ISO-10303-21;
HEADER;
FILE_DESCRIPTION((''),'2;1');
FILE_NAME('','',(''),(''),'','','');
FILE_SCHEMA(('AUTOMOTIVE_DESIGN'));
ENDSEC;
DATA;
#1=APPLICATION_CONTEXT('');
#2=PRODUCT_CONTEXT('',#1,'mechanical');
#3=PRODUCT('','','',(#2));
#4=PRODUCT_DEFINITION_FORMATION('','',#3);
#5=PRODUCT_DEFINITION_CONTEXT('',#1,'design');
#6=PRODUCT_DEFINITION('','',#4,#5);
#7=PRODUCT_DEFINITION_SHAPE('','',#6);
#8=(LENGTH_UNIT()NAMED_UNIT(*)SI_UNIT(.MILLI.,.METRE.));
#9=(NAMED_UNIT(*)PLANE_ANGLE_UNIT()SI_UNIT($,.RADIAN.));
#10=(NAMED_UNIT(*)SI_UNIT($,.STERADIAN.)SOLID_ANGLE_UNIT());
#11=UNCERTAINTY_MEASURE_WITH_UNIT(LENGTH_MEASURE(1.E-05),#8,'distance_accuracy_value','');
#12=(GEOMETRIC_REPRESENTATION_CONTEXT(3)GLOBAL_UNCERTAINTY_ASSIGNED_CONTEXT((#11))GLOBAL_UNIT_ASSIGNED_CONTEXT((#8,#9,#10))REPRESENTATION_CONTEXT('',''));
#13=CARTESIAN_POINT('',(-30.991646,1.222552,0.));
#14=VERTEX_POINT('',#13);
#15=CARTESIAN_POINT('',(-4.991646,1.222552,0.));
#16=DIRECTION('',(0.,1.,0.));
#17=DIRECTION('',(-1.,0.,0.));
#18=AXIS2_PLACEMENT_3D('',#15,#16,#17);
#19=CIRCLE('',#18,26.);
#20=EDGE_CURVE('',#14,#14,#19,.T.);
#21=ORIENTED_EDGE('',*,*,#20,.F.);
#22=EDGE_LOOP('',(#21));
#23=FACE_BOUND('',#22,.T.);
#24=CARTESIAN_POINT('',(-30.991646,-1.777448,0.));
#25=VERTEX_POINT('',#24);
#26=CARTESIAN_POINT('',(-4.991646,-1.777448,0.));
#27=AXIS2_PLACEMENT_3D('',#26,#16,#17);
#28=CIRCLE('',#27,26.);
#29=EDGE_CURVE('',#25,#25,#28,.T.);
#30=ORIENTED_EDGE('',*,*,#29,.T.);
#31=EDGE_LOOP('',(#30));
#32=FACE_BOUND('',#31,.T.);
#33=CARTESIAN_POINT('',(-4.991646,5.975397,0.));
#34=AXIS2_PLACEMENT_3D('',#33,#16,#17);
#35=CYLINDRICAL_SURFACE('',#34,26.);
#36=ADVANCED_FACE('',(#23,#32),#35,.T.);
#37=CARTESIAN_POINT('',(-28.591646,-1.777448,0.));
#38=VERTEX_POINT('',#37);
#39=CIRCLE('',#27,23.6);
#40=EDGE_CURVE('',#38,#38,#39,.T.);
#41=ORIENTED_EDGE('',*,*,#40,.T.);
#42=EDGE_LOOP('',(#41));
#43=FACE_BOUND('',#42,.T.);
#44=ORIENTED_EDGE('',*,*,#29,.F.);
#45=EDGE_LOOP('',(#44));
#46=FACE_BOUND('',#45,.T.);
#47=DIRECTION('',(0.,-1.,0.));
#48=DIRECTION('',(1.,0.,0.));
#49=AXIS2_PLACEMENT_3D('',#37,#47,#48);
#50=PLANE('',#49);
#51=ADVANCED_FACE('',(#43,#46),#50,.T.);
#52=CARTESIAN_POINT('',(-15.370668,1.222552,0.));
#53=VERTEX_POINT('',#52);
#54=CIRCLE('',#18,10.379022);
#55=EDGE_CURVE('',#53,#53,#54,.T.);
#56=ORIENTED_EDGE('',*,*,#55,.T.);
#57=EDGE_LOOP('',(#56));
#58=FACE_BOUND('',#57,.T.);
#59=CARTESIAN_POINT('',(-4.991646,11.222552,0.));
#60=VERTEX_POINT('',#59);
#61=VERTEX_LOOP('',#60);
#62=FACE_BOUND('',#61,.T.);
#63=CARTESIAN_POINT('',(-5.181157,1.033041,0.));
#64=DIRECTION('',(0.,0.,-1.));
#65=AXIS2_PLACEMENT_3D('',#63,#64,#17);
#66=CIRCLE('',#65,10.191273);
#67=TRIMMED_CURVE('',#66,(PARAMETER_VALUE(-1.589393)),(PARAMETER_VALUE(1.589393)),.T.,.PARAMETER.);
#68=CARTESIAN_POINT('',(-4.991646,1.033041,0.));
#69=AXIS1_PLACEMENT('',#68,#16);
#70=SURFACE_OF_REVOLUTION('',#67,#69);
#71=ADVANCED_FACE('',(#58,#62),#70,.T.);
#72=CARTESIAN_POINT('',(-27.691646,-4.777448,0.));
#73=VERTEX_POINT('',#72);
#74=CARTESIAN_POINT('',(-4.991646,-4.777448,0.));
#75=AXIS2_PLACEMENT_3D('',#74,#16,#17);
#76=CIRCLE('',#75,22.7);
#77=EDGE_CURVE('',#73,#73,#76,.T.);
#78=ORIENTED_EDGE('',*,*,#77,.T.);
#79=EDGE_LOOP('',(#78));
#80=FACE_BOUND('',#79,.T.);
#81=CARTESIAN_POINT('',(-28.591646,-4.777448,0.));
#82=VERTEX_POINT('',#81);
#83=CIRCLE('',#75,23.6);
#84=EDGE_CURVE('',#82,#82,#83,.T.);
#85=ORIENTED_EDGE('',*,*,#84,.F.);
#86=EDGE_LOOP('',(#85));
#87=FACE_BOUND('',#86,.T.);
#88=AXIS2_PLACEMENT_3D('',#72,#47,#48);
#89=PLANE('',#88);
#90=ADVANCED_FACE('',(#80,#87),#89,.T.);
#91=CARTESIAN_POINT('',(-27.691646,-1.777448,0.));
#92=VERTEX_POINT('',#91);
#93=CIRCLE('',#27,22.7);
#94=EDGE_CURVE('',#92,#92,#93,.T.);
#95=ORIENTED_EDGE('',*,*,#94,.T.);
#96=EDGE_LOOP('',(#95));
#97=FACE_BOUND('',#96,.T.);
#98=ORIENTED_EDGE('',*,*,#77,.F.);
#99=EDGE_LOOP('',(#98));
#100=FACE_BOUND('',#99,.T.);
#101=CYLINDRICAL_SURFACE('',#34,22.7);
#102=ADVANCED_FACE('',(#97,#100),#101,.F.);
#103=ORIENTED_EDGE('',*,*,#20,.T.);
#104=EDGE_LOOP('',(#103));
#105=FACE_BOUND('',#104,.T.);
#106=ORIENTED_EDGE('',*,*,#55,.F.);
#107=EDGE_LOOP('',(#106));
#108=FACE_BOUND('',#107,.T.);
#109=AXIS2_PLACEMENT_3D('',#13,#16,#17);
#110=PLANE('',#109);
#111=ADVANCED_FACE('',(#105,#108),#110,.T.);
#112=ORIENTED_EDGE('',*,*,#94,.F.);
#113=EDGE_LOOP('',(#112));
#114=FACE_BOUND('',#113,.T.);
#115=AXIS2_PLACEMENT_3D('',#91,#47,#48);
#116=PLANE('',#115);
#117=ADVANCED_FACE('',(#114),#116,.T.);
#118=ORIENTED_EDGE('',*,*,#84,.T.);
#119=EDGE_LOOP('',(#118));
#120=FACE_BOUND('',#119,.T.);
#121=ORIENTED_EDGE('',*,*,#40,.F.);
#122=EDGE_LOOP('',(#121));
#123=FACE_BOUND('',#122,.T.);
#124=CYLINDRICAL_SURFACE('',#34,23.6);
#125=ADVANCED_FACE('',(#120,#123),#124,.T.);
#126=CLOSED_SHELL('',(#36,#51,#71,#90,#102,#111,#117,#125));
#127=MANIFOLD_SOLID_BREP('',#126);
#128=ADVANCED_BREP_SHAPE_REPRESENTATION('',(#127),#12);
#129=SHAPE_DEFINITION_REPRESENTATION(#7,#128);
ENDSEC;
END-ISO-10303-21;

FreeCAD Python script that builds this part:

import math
import FreeCAD as App
import Part
import Sketcher
from FreeCAD import Vector

doc = App.newDocument("Part")
body = doc.addObject("PartDesign::Body", "Body")

# Sketch on XY plane
sketch1 = body.newObject("Sketcher::SketchObject", "Sketch")
sketch1.AttachmentSupport = (doc.getObject("XY_Plane"), [""])
sketch1.MapMode = "FlatFace"
sketch1.addGeometry(Part.LineSegment(Vector(-27.7, -4.8, 0), Vector(-27.7, -1.8, 0)), False)
sketch1.addGeometry(Part.LineSegment(Vector(-27.7, -1.8, 0), Vector(-5, -1.8, 0)), False)
sketch1.addGeometry(Part.LineSegment(Vector(-5, -1.8, 0), Vector(-5, 11.2, 0)), False)
sketch1.addGeometry(Part.ArcOfCircle(Part.Circle(Vector(-5.2, 1, 0), Vector(0, 0, 1), 10.2), math.radians(89), math.radians(179)), False)
sketch1.addGeometry(Part.LineSegment(Vector(-15.4, 1.2, 0), Vector(-31, 1.2, 0)), False)
sketch1.addGeometry(Part.LineSegment(Vector(-31, 1.2, 0), Vector(-31, -1.8, 0)), False)
sketch1.addGeometry(Part.LineSegment(Vector(-31, -1.8, 0), Vector(-28.6, -1.8, 0)), False)
sketch1.addGeometry(Part.LineSegment(Vector(-28.6, -1.8, 0), Vector(-28.6, -4.8, 0)), False)
sketch1.addGeometry(Part.LineSegment(Vector(-28.6, -4.8, 0), Vector(-27.7, -4.8, 0)), False)
sketch1.addGeometry(Part.LineSegment(Vector(-5, 11.2, 0), Vector(-5, -4.8, 0)), True)  # axis
sketch1.addConstraint(Sketcher.Constraint("Coincident", 0, 2, 1, 1))
sketch1.addConstraint(Sketcher.Constraint("Coincident", 1, 2, 2, 1))
sketch1.addConstraint(Sketcher.Constraint("Coincident", 2, 2, 3, 1))
sketch1.addConstraint(Sketcher.Constraint("Coincident", 3, 2, 4, 1))
sketch1.addConstraint(Sketcher.Constraint("Coincident", 4, 2, 5, 1))
sketch1.addConstraint(Sketcher.Constraint("Coincident", 5, 2, 6, 1))
sketch1.addConstraint(Sketcher.Constraint("Coincident", 6, 2, 7, 1))
sketch1.addConstraint(Sketcher.Constraint("Coincident", 7, 2, 8, 1))
sketch1.addConstraint(Sketcher.Constraint("Coincident", 8, 2, 0, 1))
sketch1.addConstraint(Sketcher.Constraint("Vertical", 0))
sketch1.addConstraint(Sketcher.Constraint("Horizontal", 1))
sketch1.addConstraint(Sketcher.Constraint("Vertical", 2))
sketch1.addConstraint(Sketcher.Constraint("Horizontal", 4))
sketch1.addConstraint(Sketcher.Constraint("Vertical", 5))
sketch1.addConstraint(Sketcher.Constraint("Horizontal", 6))
sketch1.addConstraint(Sketcher.Constraint("Vertical", 7))
sketch1.addConstraint(Sketcher.Constraint("Horizontal", 8))
sketch1.addConstraint(Sketcher.Constraint("Vertical", 9))
sketch1.addConstraint(Sketcher.Constraint("Coincident", 9, 1, 2, 2))
sketch1.addConstraint(Sketcher.Constraint("Horizontal", 1, 2, 5, 2))
sketch1.addConstraint(Sketcher.Constraint("Horizontal", 8, 2, 9, 2))
sketch1.addConstraint(Sketcher.Constraint("Equal", 0, 5))
sketch1.addConstraint(Sketcher.Constraint("DistanceY", 0, 1, 0, 2, 3.0))
sketch1.addConstraint(Sketcher.Constraint("DistanceY", 2, 1, 2, 2, 13.0))
sketch1.addConstraint(Sketcher.Constraint("DistanceX", 1, 1, 1, 2, 22.7))
sketch1.addConstraint(Sketcher.Constraint("DistanceX", 6, 1, 6, 2, 2.4))
sketch1.addConstraint(Sketcher.Constraint("DistanceX", 8, 1, 8, 2, 0.9))
sketch1.addConstraint(Sketcher.Constraint("Radius", 3, 10.191273))
sketch1.addConstraint(Sketcher.Constraint("DistanceX", 4, 2, 4, 1, 15.620978))
sketch1.addConstraint(Sketcher.Constraint("DistanceY", -1, 1, 3, 3, 1.033041))
sketch1.addConstraint(Sketcher.Constraint("DistanceX", 3, 3, -1, 1, 5.181157))
revolution = body.newObject("PartDesign::Revolution", "Revolution")
revolution.Profile = sketch1
revolution.ReferenceAxis = (sketch1, ["Axis0"])
revolution.Angle = 360

doc.recompute()
